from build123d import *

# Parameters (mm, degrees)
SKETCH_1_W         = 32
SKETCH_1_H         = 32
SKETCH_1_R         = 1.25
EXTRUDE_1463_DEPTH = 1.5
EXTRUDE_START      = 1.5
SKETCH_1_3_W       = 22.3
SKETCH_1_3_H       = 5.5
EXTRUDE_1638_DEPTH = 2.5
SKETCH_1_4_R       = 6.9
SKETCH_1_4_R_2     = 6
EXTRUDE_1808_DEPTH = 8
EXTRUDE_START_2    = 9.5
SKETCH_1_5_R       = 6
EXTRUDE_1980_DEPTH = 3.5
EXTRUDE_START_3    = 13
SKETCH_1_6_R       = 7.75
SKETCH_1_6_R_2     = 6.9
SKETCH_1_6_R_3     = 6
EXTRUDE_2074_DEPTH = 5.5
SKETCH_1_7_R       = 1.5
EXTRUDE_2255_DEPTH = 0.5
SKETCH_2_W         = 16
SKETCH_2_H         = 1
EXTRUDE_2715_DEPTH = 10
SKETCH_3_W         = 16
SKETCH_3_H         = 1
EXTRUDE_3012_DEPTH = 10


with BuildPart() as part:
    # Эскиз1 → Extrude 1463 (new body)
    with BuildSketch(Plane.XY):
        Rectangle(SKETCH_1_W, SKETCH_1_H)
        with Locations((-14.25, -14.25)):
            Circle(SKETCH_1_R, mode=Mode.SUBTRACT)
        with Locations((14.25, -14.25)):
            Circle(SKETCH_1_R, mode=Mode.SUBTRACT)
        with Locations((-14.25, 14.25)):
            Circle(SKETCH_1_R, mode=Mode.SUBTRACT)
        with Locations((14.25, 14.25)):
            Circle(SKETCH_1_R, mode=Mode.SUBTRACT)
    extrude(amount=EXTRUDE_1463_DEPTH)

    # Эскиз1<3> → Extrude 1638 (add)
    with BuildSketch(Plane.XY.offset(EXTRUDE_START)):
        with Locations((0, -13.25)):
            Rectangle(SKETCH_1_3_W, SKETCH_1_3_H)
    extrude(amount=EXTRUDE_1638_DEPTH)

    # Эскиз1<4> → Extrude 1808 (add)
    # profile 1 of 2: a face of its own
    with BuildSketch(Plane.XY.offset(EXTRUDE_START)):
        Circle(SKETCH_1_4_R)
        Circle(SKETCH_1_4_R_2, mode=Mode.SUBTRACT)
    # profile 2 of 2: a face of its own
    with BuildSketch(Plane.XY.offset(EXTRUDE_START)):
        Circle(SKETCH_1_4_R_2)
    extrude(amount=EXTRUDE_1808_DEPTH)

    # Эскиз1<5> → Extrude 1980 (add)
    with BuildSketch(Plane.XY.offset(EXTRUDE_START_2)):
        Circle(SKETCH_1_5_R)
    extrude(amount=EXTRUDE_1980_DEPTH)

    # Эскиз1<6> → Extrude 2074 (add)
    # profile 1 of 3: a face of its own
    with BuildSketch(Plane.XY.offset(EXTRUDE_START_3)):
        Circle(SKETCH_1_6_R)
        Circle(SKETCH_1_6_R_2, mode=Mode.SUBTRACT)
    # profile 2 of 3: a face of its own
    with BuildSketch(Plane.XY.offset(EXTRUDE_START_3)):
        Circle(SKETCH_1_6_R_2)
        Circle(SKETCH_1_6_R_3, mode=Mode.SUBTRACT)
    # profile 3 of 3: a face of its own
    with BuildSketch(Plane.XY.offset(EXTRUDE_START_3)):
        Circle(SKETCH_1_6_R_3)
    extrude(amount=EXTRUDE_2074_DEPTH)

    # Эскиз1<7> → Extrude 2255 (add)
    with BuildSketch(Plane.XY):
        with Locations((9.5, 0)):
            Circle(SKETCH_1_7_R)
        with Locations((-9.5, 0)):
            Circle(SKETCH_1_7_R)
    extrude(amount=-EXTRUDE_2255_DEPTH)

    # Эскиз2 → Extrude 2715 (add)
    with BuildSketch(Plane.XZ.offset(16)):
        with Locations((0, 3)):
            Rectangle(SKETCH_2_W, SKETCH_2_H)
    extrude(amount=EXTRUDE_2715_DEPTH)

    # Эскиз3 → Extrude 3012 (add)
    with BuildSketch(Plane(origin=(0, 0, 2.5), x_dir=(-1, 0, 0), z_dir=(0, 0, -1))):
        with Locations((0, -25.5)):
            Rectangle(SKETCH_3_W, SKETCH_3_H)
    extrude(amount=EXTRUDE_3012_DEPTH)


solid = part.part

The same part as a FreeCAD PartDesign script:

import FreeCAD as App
import Part
import Sketcher
from FreeCAD import Vector
Q = App.Units.Quantity


def add_polygon(sketch, points):
    """Adds a closed chain of lines whose ends are joined by coincident constraints."""
    first, n = sketch.GeometryCount, len(points)
    for a, b in zip(points, points[1:] + points[:1]):
        sketch.addGeometry(Part.LineSegment(App.Vector(*a, 0), App.Vector(*b, 0)), False)
    for i in range(n):
        sketch.addConstraint(Sketcher.Constraint("Coincident", first + i, 2, first + (i + 1) % n, 1))

doc = App.newDocument("Part")
body = doc.addObject("PartDesign::Body", "Body")

sketch1 = body.newObject("Sketcher::SketchObject", "Sketch")
sketch1.AttachmentSupport = (doc.getObject("XY_Plane"), [""])
sketch1.MapMode = "FlatFace"
add_polygon(sketch1, [(-16, 16), (-16, -16), (16, -16), (16, 16)])
sketch1.addGeometry(Part.Circle(Vector(-14.2, -14.2, 0), Vector(0, 0, 1), 1.2), False)
sketch1.addGeometry(Part.Circle(Vector(14.2, -14.2, 0), Vector(0, 0, 1), 1.2), False)
sketch1.addGeometry(Part.Circle(Vector(-14.2, 14.2, 0), Vector(0, 0, 1), 1.2), False)
sketch1.addGeometry(Part.Circle(Vector(14.2, 14.2, 0), Vector(0, 0, 1), 1.2), False)
sketch1.addConstraint(Sketcher.Constraint("Vertical", 0))
sketch1.addConstraint(Sketcher.Constraint("Horizontal", 1))
sketch1.addConstraint(Sketcher.Constraint("Vertical", 2))
sketch1.addConstraint(Sketcher.Constraint("Horizontal", 3))
sketch1.addConstraint(Sketcher.Constraint("Equal", 4, 5))
sketch1.addConstraint(Sketcher.Constraint("Equal", 5, 6))
sketch1.addConstraint(Sketcher.Constraint("Equal", 6, 7))
sketch1.addConstraint(Sketcher.Constraint("Symmetric", 5, 3, 6, 3, -1, 1))
sketch1.addConstraint(Sketcher.Constraint("Symmetric", 4, 3, 7, 3, -1, 1))
sketch1.addConstraint(Sketcher.Constraint("Symmetric", 0, 2, 2, 2, -1, 1))
sketch1.addConstraint(Sketcher.Constraint("Symmetric", 4, 3, 5, 3, -2))
sketch1.addConstraint(Sketcher.Constraint("Equal", 3, 0))
sketch1.addConstraint(Sketcher.Constraint("Diameter", 4, Q("2.5 mm")))
sketch1.addConstraint(Sketcher.Constraint("DistanceX", 1, 1, 1, 2, Q("32 mm")))
sketch1.addConstraint(Sketcher.Constraint("DistanceX", 4, 3, 5, 3, Q("28.5 mm")))
sketch1.addConstraint(Sketcher.Constraint("DistanceY", 4, 3, 6, 3, Q("28.5 mm")))
pad1 = body.newObject("PartDesign::Pad", "Pad")
pad1.Profile = sketch1
pad1.Length = 1.5

sketch2 = body.newObject("Sketcher::SketchObject", "Sketch001")
sketch2.AttachmentSupport = (doc.getObject("XY_Plane"), [""])
sketch2.MapMode = "FlatFace"
sketch2.AttachmentOffset = App.Placement(Vector(0, 0, 1.5), App.Rotation())
add_polygon(sketch2, [(-11, -10), (-11, -16), (11, -16), (11, -10)])
sketch2.addConstraint(Sketcher.Constraint("Vertical", 0))
sketch2.addConstraint(Sketcher.Constraint("Horizontal", 1))
sketch2.addConstraint(Sketcher.Constraint("Vertical", 2))
sketch2.addConstraint(Sketcher.Constraint("Horizontal", 3))
sketch2.addConstraint(Sketcher.Constraint("DistanceX", 1, 1, 1, 2, Q("22.3 mm")))
sketch2.addConstraint(Sketcher.Constraint("DistanceY", 0, 2, 0, 1, Q("5.5 mm")))
sketch2.addConstraint(Sketcher.Constraint("DistanceY", 0, 2, -1, 1, Q("16 mm")))
sketch2.addConstraint(Sketcher.Constraint("DistanceX", 0, 2, -1, 1, Q("11.15 mm")))
pad2 = body.newObject("PartDesign::Pad", "Pad001")
pad2.Profile = sketch2
pad2.Length = 2.5

sketch3 = body.newObject("Sketcher::SketchObject", "Sketch002")
sketch3.AttachmentSupport = (doc.getObject("XY_Plane"), [""])
sketch3.MapMode = "FlatFace"
sketch3.AttachmentOffset = App.Placement(Vector(0, 0, 1.5), App.Rotation())
sketch3.addGeometry(Part.Circle(Vector(0, 0, 0), Vector(0, 0, 1), 7), False)
sketch3.addConstraint(Sketcher.Constraint("Coincident", 0, 3, -1, 1))
sketch3.addConstraint(Sketcher.Constraint("Diameter", 0, Q("13.8 mm")))
pad3 = body.newObject("PartDesign::Pad", "Pad002")
pad3.Profile = sketch3
pad3.Length = 8

sketch4 = body.newObject("Sketcher::SketchObject", "Sketch003")
sketch4.AttachmentSupport = (doc.getObject("XY_Plane"), [""])
sketch4.MapMode = "FlatFace"
sketch4.AttachmentOffset = App.Placement(Vector(0, 0, 9.5), App.Rotation())
sketch4.addGeometry(Part.Circle(Vector(0, 0, 0), Vector(0, 0, 1), 6), False)
sketch4.addConstraint(Sketcher.Constraint("Coincident", 0, 3, -1, 1))
sketch4.addConstraint(Sketcher.Constraint("Diameter", 0, Q("12 mm")))
pad4 = body.newObject("PartDesign::Pad", "Pad003")
pad4.Profile = sketch4
pad4.Length = 3.5

sketch5 = body.newObject("Sketcher::SketchObject", "Sketch004")
sketch5.AttachmentSupport = (doc.getObject("XY_Plane"), [""])
sketch5.MapMode = "FlatFace"
sketch5.AttachmentOffset = App.Placement(Vector(0, 0, 13), App.Rotation())
sketch5.addGeometry(Part.Circle(Vector(0, 0, 0), Vector(0, 0, 1), 8), False)
sketch5.addConstraint(Sketcher.Constraint("Coincident", 0, 3, -1, 1))
sketch5.addConstraint(Sketcher.Constraint("Diameter", 0, Q("15.5 mm")))
pad5 = body.newObject("PartDesign::Pad", "Pad004")
pad5.Profile = sketch5
pad5.Length = 5.5

sketch6 = body.newObject("Sketcher::SketchObject", "Sketch005")
sketch6.AttachmentSupport = (doc.getObject("XY_Plane"), [""])
sketch6.MapMode = "FlatFace"
sketch6.addGeometry(Part.Circle(Vector(9.5, 0, 0), Vector(0, 0, 1), 1.5), False)
sketch6.addGeometry(Part.Circle(Vector(-9.5, 0, 0), Vector(0, 0, 1), 1.5), False)
sketch6.addConstraint(Sketcher.Constraint("Equal", 0, 1))
sketch6.addConstraint(Sketcher.Constraint("Symmetric", 0, 3, 1, 3, -1, 1))
sketch6.addConstraint(Sketcher.Constraint("PointOnObject", 0, 3, -1))
sketch6.addConstraint(Sketcher.Constraint("Diameter", 0, Q("3 mm")))
sketch6.addConstraint(Sketcher.Constraint("DistanceX", 1, 3, 0, 3, Q("19 mm")))
pad6 = body.newObject("PartDesign::Pad", "Pad005")
pad6.Profile = sketch6
pad6.Length = 0.5
pad6.Reversed = True

sketch7 = body.newObject("Sketcher::SketchObject", "Sketch006")
sketch7.AttachmentSupport = (doc.getObject("XZ_Plane"), [""])
sketch7.MapMode = "FlatFace"
sketch7.AttachmentOffset = App.Placement(Vector(0, 0, 16), App.Rotation())
add_polygon(sketch7, [(-8, 3.5), (-8, 2.5), (8, 2.5), (8, 3.5)])
sketch7.addConstraint(Sketcher.Constraint("Vertical", 0))
sketch7.addConstraint(Sketcher.Constraint("Horizontal", 1))
sketch7.addConstraint(Sketcher.Constraint("Vertical", 2))
sketch7.addConstraint(Sketcher.Constraint("Horizontal", 3))
sketch7.addConstraint(Sketcher.Constraint("DistanceX", 1, 1, 1, 2, Q("16 mm")))
sketch7.addConstraint(Sketcher.Constraint("DistanceY", 0, 2, 0, 1, Q("1 mm")))
sketch7.addConstraint(Sketcher.Constraint("DistanceX", 0, 2, -1, 1, Q("8 mm")))
sketch7.addConstraint(Sketcher.Constraint("DistanceY", -1, 1, 0, 2, Q("2.5 mm")))
pad7 = body.newObject("PartDesign::Pad", "Pad006")
pad7.Profile = sketch7
pad7.Length = 10

sketch8 = body.newObject("Sketcher::SketchObject", "Sketch007")
sketch8.AttachmentSupport = (doc.getObject("XY_Plane"), [""])
sketch8.MapMode = "FlatFace"
sketch8.AttachmentOffset = App.Placement(Vector(0, 0, 2.5), App.Rotation())
add_polygon(sketch8, [(8, -25), (8, -26), (-8, -26), (-8, -25)])
sketch8.addConstraint(Sketcher.Constraint("Vertical", 0))
sketch8.addConstraint(Sketcher.Constraint("Horizontal", 1))
sketch8.addConstraint(Sketcher.Constraint("Vertical", 2))
sketch8.addConstraint(Sketcher.Constraint("Horizontal", 3))
sketch8.addConstraint(Sketcher.Constraint("DistanceX", 1, 2, 1, 1, Q("16 mm")))
sketch8.addConstraint(Sketcher.Constraint("DistanceY", 0, 2, 0, 1, Q("1 mm")))
sketch8.addConstraint(Sketcher.Constraint("DistanceX", -1, 1, 0, 2, Q("8 mm")))
sketch8.addConstraint(Sketcher.Constraint("DistanceY", 0, 2, -1, 1, Q("26 mm")))
pad8 = body.newObject("PartDesign::Pad", "Pad007")
pad8.Profile = sketch8
pad8.Length = 10
pad8.Reversed = True

doc.recompute()
